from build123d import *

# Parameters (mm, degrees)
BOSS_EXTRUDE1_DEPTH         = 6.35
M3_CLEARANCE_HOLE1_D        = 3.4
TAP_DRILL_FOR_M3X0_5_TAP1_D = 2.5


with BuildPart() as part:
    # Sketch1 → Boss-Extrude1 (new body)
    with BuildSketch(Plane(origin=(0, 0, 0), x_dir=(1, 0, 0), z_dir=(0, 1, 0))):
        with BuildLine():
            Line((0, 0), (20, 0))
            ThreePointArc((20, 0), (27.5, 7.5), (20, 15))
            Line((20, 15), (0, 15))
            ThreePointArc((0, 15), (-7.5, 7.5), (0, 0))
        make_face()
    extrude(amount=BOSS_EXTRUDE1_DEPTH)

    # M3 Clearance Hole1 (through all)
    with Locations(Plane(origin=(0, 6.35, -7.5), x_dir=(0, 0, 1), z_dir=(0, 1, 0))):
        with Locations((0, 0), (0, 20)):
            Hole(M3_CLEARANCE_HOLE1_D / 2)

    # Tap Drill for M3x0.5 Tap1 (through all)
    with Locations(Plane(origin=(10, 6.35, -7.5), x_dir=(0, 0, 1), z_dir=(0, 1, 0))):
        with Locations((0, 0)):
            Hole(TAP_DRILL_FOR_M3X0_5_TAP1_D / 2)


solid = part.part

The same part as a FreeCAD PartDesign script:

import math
import FreeCAD as App
import Part
import Sketcher
from FreeCAD import Vector
Q = App.Units.Quantity

doc = App.newDocument("Part")
body = doc.addObject("PartDesign::Body", "Body")

# Sketch on XZ plane
sketch1 = body.newObject("Sketcher::SketchObject", "Sketch")
sketch1.AttachmentSupport = (doc.getObject("XZ_Plane"), [""])
sketch1.MapMode = "FlatFace"
sketch1.addGeometry(Part.LineSegment(Vector(0, 0, 0), Vector(20, 0, 0)), False)
sketch1.addGeometry(Part.ArcOfCircle(Part.Circle(Vector(20, -8, 0), Vector(0, 0, 1), 8), math.radians(-90), math.radians(90)), False)
sketch1.addGeometry(Part.LineSegment(Vector(20, -15, 0), Vector(0, -15, 0)), False)
sketch1.addGeometry(Part.ArcOfCircle(Part.Circle(Vector(0, -8, 0), Vector(0, 0, 1), 8), math.radians(90), math.radians(270)), False)
sketch1.addConstraint(Sketcher.Constraint("Tangent", 0, 2, 1, 2))
sketch1.addConstraint(Sketcher.Constraint("Tangent", 1, 1, 2, 1))
sketch1.addConstraint(Sketcher.Constraint("Tangent", 2, 2, 3, 2))
sketch1.addConstraint(Sketcher.Constraint("Tangent", 3, 1, 0, 1))
sketch1.addConstraint(Sketcher.Constraint("Horizontal", 0))
sketch1.addConstraint(Sketcher.Constraint("Horizontal", 2))
sketch1.addConstraint(Sketcher.Constraint("Coincident", 3, 1, -1, 1))
sketch1.addConstraint(Sketcher.Constraint("Radius", 1, Q("7.5 mm")))
sketch1.addConstraint(Sketcher.Constraint("DistanceX", 0, 1, 0, 2, Q("20 mm")))
pad1 = body.newObject("PartDesign::Pad", "Pad")
pad1.Profile = sketch1
pad1.Length = 6.35
pad1.Reversed = True

# Sketch on XZ plane
sketch2 = body.newObject("Sketcher::SketchObject", "Sketch001")
sketch2.AttachmentSupport = (doc.getObject("XZ_Plane"), [""])
sketch2.MapMode = "FlatFace"
sketch2.AttachmentOffset = App.Placement(Vector(0, 0, -6.35), App.Rotation())
sketch2.addGeometry(Part.Circle(Vector(0, -7.5, 0), Vector(0, 0, 1), 1.7), False)
sketch2.addGeometry(Part.Circle(Vector(20, -7.5, 0), Vector(0, 0, 1), 1.7), False)
sketch2.addConstraint(Sketcher.Constraint("Equal", 0, 1))
sketch2.addConstraint(Sketcher.Constraint("PointOnObject", 0, 3, -2))
sketch2.addConstraint(Sketcher.Constraint("Horizontal", 0, 3, 1, 3))
sketch2.addConstraint(Sketcher.Constraint("Diameter", 0, Q("3.4 mm")))
sketch2.addConstraint(Sketcher.Constraint("DistanceX", -1, 1, 1, 3, Q("20 mm")))
sketch2.addConstraint(Sketcher.Constraint("DistanceY", 0, 3, -1, 1, Q("7.5 mm")))
doc.recompute()
hole = body.newObject("PartDesign::Hole", "Hole")
hole.Profile = sketch2
hole.ThreadType = "None"
hole.Diameter = 3.4
hole.DepthType = "ThroughAll"
hole.Reversed = True

# Sketch on XZ plane
sketch3 = body.newObject("Sketcher::SketchObject", "Sketch002")
sketch3.AttachmentSupport = (doc.getObject("XZ_Plane"), [""])
sketch3.MapMode = "FlatFace"
sketch3.AttachmentOffset = App.Placement(Vector(0, 0, -6.35), App.Rotation())
sketch3.addGeometry(Part.Circle(Vector(10, -7.5, 0), Vector(0, 0, 1), 1.2), False)
sketch3.addConstraint(Sketcher.Constraint("Diameter", 0, Q("2.5 mm")))
sketch3.addConstraint(Sketcher.Constraint("DistanceX", -1, 1, 0, 3, Q("10 mm")))
sketch3.addConstraint(Sketcher.Constraint("DistanceY", 0, 3, -1, 1, Q("7.5 mm")))
doc.recompute()
hole2 = body.newObject("PartDesign::Hole", "Hole001")
hole2.Profile = sketch3
hole2.ThreadType = "None"
hole2.Diameter = 2.5
hole2.DepthType = "ThroughAll"
hole2.Reversed = True

doc.recompute()
